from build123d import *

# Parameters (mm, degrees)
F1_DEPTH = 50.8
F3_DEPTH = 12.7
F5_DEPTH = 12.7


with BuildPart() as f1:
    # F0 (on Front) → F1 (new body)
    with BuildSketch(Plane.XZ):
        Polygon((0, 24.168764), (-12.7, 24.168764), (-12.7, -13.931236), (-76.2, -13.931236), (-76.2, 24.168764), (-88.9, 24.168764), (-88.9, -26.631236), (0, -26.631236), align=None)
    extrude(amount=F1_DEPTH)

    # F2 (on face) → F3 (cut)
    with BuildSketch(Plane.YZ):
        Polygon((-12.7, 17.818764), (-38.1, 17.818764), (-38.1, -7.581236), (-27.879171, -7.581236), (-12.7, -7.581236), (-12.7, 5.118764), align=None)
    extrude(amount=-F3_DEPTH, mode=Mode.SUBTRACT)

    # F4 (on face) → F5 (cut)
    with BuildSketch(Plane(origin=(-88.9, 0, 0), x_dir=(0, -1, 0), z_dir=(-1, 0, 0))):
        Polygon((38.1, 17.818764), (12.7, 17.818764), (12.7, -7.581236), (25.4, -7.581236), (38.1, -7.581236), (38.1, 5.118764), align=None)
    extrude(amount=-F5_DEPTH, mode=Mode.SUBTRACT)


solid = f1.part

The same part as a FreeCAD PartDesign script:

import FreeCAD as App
import Part
import Sketcher
from FreeCAD import Vector
Q = App.Units.Quantity

doc = App.newDocument("Part")
body = doc.addObject("PartDesign::Body", "Body")

sketch1 = doc.addObject("Sketcher::SketchObject", "Sketch")
body.addObject(sketch1)
sketch1.AttachmentSupport = (doc.XZ_Plane, [""])
sketch1.MapMode = "FlatFace"
sketch1.addGeometry([
    Part.LineSegment(Vector(0, 24.168764, 0), Vector(-12.7, 24.168764, 0)),
    Part.LineSegment(Vector(-12.7, 24.168764, 0), Vector(-12.7, -13.931236, 0)),
    Part.LineSegment(Vector(-12.7, -13.931236, 0), Vector(-76.2, -13.931236, 0)),
    Part.LineSegment(Vector(-76.2, -13.931236, 0), Vector(-76.2, 24.168764, 0)),
    Part.LineSegment(Vector(-76.2, 24.168764, 0), Vector(-88.9, 24.168764, 0)),
    Part.LineSegment(Vector(-88.9, 24.168764, 0), Vector(-88.9, -26.631236, 0)),
    Part.LineSegment(Vector(-88.9, -26.631236, 0), Vector(0, -26.631236, 0)),
    Part.LineSegment(Vector(0, -26.631236, 0), Vector(0, 24.168764, 0)),
], False)
sketch1.addConstraint([
    Sketcher.Constraint("Coincident", 0, 2, 1, 1),
    Sketcher.Constraint("Coincident", 1, 2, 2, 1),
    Sketcher.Constraint("Coincident", 2, 2, 3, 1),
    Sketcher.Constraint("Coincident", 3, 2, 4, 1),
    Sketcher.Constraint("Coincident", 4, 2, 5, 1),
    Sketcher.Constraint("Coincident", 5, 2, 6, 1),
    Sketcher.Constraint("Coincident", 6, 2, 7, 1),
    Sketcher.Constraint("Coincident", 7, 2, 0, 1),
    Sketcher.Constraint("Horizontal", 0),
    Sketcher.Constraint("Vertical", 1),
    Sketcher.Constraint("Horizontal", 2),
    Sketcher.Constraint("Vertical", 3),
    Sketcher.Constraint("Horizontal", 4),
    Sketcher.Constraint("Vertical", 5),
    Sketcher.Constraint("Horizontal", 6),
    Sketcher.Constraint("Vertical", 7),
    Sketcher.Constraint("PointOnObject", 6, 2, -2),
    Sketcher.Constraint("Horizontal", 0, 2, 3, 2),
    Sketcher.Constraint("Equal", 0, 4),
    Sketcher.Constraint("DistanceY", 5, 2, 5, 1, Q("2 in")),
    Sketcher.Constraint("DistanceX", 0, 2, 0, 1, Q("0.5 in")),
    Sketcher.Constraint("DistanceX", 2, 2, 2, 1, Q("2.5 in")),
    Sketcher.Constraint("DistanceY", 1, 2, 1, 1, Q("1.5 in")),
    Sketcher.Constraint("DistanceY", -1, 1, 0, 2, Q("24.168764 mm")),
])
pad1 = doc.addObject("PartDesign::Pad", "Pad")
body.addObject(pad1)
pad1.Profile = sketch1
pad1.Length = Q("2 in")

sketch2 = doc.addObject("Sketcher::SketchObject", "Sketch001")
body.addObject(sketch2)
sketch2.AttachmentSupport = (doc.YZ_Plane, [""])
sketch2.MapMode = "FlatFace"
sketch2.addGeometry([
    Part.LineSegment(Vector(-12.7, 17.818764, 0), Vector(-38.1, 17.818764, 0)),
    Part.LineSegment(Vector(-38.1, 17.818764, 0), Vector(-38.1, -7.581236, 0)),
    Part.LineSegment(Vector(-38.1, -7.581236, 0), Vector(-12.7, -7.581236, 0)),
    Part.LineSegment(Vector(-12.7, -7.581236, 0), Vector(-12.7, 17.818764, 0)),
], False)
sketch2.addConstraint([
    Sketcher.Constraint("Coincident", 0, 2, 1, 1),
    Sketcher.Constraint("Coincident", 1, 2, 2, 1),
    Sketcher.Constraint("Coincident", 2, 2, 3, 1),
    Sketcher.Constraint("Coincident", 3, 2, 0, 1),
    Sketcher.Constraint("Horizontal", 0),
    Sketcher.Constraint("Vertical", 1),
    Sketcher.Constraint("Horizontal", 2),
    Sketcher.Constraint("Vertical", 3),
    Sketcher.Constraint("Equal", 2, 1),
    Sketcher.Constraint("DistanceX", 0, 2, 0, 1, Q("1 in")),
    Sketcher.Constraint("DistanceX", 0, 2, -1, 1, Q("1.5 in")),
    Sketcher.Constraint("DistanceY", -1, 1, 0, 2, Q("17.818764 mm")),
])
pocket1 = doc.addObject("PartDesign::Pocket", "Pocket")
body.addObject(pocket1)
pocket1.Profile = sketch2
pocket1.Length = Q("0.5 in")

sketch3 = doc.addObject("Sketcher::SketchObject", "Sketch002")
body.addObject(sketch3)
sketch3.AttachmentSupport = (doc.YZ_Plane, [""])
sketch3.MapMode = "FlatFace"
sketch3.AttachmentOffset = App.Placement(Vector(0, 0, -3.5 * 25.4), App.Rotation())
sketch3.addGeometry([
    Part.LineSegment(Vector(-38.1, 17.818764, 0), Vector(-12.7, 17.818764, 0)),
    Part.LineSegment(Vector(-12.7, 17.818764, 0), Vector(-12.7, -7.581236, 0)),
    Part.LineSegment(Vector(-12.7, -7.581236, 0), Vector(-38.1, -7.581236, 0)),
    Part.LineSegment(Vector(-38.1, -7.581236, 0), Vector(-38.1, 17.818764, 0)),
], False)
sketch3.addConstraint([
    Sketcher.Constraint("Coincident", 0, 2, 1, 1),
    Sketcher.Constraint("Coincident", 1, 2, 2, 1),
    Sketcher.Constraint("Coincident", 2, 2, 3, 1),
    Sketcher.Constraint("Coincident", 3, 2, 0, 1),
    Sketcher.Constraint("Horizontal", 0),
    Sketcher.Constraint("Vertical", 1),
    Sketcher.Constraint("Horizontal", 2),
    Sketcher.Constraint("Vertical", 3),
    Sketcher.Constraint("Equal", 2, 1),
    Sketcher.Constraint("DistanceX", 0, 1, 0, 2, Q("1 in")),
    Sketcher.Constraint("DistanceX", 0, 2, -1, 1, Q("0.5 in")),
    Sketcher.Constraint("DistanceY", -1, 1, 0, 2, Q("17.818764 mm")),
])
pocket2 = doc.addObject("PartDesign::Pocket", "Pocket001")
body.addObject(pocket2)
pocket2.Profile = sketch3
pocket2.Length = Q("0.5 in")
pocket2.Reversed = True

doc.recompute()
